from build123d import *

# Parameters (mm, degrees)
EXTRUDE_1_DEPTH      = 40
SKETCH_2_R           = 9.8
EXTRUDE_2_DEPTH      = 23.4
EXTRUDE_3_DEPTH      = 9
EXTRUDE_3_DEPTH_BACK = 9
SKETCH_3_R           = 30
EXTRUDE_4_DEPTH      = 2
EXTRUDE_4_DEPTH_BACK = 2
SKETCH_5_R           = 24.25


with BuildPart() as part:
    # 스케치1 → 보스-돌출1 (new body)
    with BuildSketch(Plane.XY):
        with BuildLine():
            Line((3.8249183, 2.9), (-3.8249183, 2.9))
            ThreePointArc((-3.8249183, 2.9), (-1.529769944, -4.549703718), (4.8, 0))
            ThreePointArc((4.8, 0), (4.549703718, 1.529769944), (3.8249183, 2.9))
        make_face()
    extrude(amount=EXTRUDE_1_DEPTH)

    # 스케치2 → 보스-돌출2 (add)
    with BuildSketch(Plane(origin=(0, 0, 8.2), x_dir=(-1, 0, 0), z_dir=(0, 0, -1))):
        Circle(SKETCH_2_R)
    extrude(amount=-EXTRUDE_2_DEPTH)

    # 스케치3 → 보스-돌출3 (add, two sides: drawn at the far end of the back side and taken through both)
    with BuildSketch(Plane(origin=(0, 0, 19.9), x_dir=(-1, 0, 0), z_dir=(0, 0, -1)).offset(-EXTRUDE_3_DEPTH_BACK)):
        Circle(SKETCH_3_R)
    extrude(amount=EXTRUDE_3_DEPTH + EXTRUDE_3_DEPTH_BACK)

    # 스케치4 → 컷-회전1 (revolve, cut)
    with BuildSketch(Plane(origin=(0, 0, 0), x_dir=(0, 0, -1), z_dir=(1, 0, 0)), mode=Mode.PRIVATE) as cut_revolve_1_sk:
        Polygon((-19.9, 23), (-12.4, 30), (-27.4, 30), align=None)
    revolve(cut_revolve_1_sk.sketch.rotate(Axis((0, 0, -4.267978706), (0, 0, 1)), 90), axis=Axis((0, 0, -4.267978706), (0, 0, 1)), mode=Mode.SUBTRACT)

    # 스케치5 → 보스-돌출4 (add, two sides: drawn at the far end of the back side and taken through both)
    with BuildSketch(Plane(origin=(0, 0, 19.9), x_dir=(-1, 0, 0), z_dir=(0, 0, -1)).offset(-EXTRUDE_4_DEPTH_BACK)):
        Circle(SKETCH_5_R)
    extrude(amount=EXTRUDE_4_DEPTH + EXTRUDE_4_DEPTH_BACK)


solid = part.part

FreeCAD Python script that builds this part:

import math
import FreeCAD as App
import Part
import Sketcher

V = App.Vector
Q = App.Units.Quantity

doc = App.newDocument("Part")
body = doc.addObject("PartDesign::Body", "Body")

# Sketch on XY plane
sketch1 = body.newObject("Sketcher::SketchObject", "Sketch")
sketch1.AttachmentSupport = (doc.getObject("XY_Plane"), [""])
sketch1.MapMode = "FlatFace"
sketch1.addGeometry(Part.LineSegment(V(3.824918, 2.9, 0), V(-3.824918, 2.9, 0)), False)
sketch1.addGeometry(Part.ArcOfCircle(Part.Circle(V(0, 0, 0), V(0, 0, 1), 4.8), math.radians(142.8311), math.radians(360)), False)
sketch1.addGeometry(Part.ArcOfCircle(Part.Circle(V(0, 0, 0), V(0, 0, 1), 4.8), math.radians(0), math.radians(37.1689)), False)
sketch1.addConstraint(Sketcher.Constraint("Coincident", 0, 2, 1, 1))
sketch1.addConstraint(Sketcher.Constraint("Tangent", 1, 2, 2, 1))
sketch1.addConstraint(Sketcher.Constraint("Coincident", 2, 2, 0, 1))
sketch1.addConstraint(Sketcher.Constraint("Horizontal", 0))
sketch1.addConstraint(Sketcher.Constraint("Coincident", 1, 3, -1, 1))
sketch1.addConstraint(Sketcher.Constraint("Equal", 1, 2))
sketch1.addConstraint(Sketcher.Constraint("PointOnObject", 1, 2, -1))
sketch1.addConstraint(Sketcher.Constraint("Radius", 1, Q("4.8 mm")))
sketch1.addConstraint(Sketcher.Constraint("DistanceY", -1, 1, 0, 2, Q("2.9 mm")))
pad1 = body.newObject("PartDesign::Pad", "Pad")
pad1.Profile = sketch1
pad1.Length = 40

# Sketch on XY plane
sketch2 = body.newObject("Sketcher::SketchObject", "Sketch001")
sketch2.AttachmentSupport = (doc.getObject("XY_Plane"), [""])
sketch2.MapMode = "FlatFace"
sketch2.AttachmentOffset = App.Placement(V(0, 0, 8.2), App.Rotation())
sketch2.addGeometry(Part.Circle(V(0, 0, 0), V(0, 0, 1), 9.8), False)
sketch2.addConstraint(Sketcher.Constraint("Coincident", 0, 3, -1, 1))
sketch2.addConstraint(Sketcher.Constraint("Diameter", 0, Q("19.6 mm")))
pad2 = body.newObject("PartDesign::Pad", "Pad001")
pad2.Profile = sketch2
pad2.Length = 23.4

# Sketch on XY plane
sketch3 = body.newObject("Sketcher::SketchObject", "Sketch002")
sketch3.AttachmentSupport = (doc.getObject("XY_Plane"), [""])
sketch3.MapMode = "FlatFace"
sketch3.AttachmentOffset = App.Placement(V(0, 0, 19.9), App.Rotation())
sketch3.addGeometry(Part.Circle(V(0, 0, 0), V(0, 0, 1), 30), False)
sketch3.addConstraint(Sketcher.Constraint("Coincident", 0, 3, -1, 1))
sketch3.addConstraint(Sketcher.Constraint("Diameter", 0, Q("60 mm")))
pad3 = body.newObject("PartDesign::Pad", "Pad002")
pad3.Profile = sketch3
pad3.Type = "TwoLengths"
pad3.Length = 9
pad3.Length2 = 9
pad3.Reversed = True

# Sketch on YZ plane
sketch4 = body.newObject("Sketcher::SketchObject", "Sketch003")
sketch4.AttachmentSupport = (doc.getObject("YZ_Plane"), [""])
sketch4.MapMode = "FlatFace"
sketch4.addGeometry(Part.LineSegment(V(23, 19.9, 0), V(30, 12.4, 0)), False)
sketch4.addGeometry(Part.LineSegment(V(30, 12.4, 0), V(30, 27.4, 0)), False)
sketch4.addGeometry(Part.LineSegment(V(30, 27.4, 0), V(23, 19.9, 0)), False)
sketch4.addConstraint(Sketcher.Constraint("Coincident", 0, 2, 1, 1))
sketch4.addConstraint(Sketcher.Constraint("Coincident", 1, 2, 2, 1))
sketch4.addConstraint(Sketcher.Constraint("Coincident", 2, 2, 0, 1))
sketch4.addConstraint(Sketcher.Constraint("Vertical", 1))
sketch4.addConstraint(Sketcher.Constraint("Equal", 0, 2))
sketch4.addConstraint(Sketcher.Constraint("DistanceY", 1, 1, 1, 2, Q("15 mm")))
sketch4.addConstraint(Sketcher.Constraint("DistanceX", -1, 1, 0, 2, Q("30 mm")))
sketch4.addConstraint(Sketcher.Constraint("DistanceX", -1, 1, 2, 2, Q("23 mm")))
sketch4.addConstraint(Sketcher.Constraint("DistanceY", -1, 1, 0, 2, Q("12.4 mm")))
groove = body.newObject("PartDesign::Groove", "Groove")
groove.Profile = sketch4
groove.ReferenceAxis = (sketch4, ["V_Axis"])
groove.Angle = 360

# Sketch on XY plane
sketch5 = body.newObject("Sketcher::SketchObject", "Sketch004")
sketch5.AttachmentSupport = (doc.getObject("XY_Plane"), [""])
sketch5.MapMode = "FlatFace"
sketch5.AttachmentOffset = App.Placement(V(0, 0, 19.9), App.Rotation())
sketch5.addGeometry(Part.Circle(V(0, 0, 0), V(0, 0, 1), 24.25), False)
sketch5.addConstraint(Sketcher.Constraint("Coincident", 0, 3, -1, 1))
sketch5.addConstraint(Sketcher.Constraint("Diameter", 0, Q("48.5 mm")))
pad4 = body.newObject("PartDesign::Pad", "Pad003")
pad4.Profile = sketch5
pad4.Type = "TwoLengths"
pad4.Length = 2
pad4.Length2 = 2
pad4.Reversed = True

doc.recompute()
